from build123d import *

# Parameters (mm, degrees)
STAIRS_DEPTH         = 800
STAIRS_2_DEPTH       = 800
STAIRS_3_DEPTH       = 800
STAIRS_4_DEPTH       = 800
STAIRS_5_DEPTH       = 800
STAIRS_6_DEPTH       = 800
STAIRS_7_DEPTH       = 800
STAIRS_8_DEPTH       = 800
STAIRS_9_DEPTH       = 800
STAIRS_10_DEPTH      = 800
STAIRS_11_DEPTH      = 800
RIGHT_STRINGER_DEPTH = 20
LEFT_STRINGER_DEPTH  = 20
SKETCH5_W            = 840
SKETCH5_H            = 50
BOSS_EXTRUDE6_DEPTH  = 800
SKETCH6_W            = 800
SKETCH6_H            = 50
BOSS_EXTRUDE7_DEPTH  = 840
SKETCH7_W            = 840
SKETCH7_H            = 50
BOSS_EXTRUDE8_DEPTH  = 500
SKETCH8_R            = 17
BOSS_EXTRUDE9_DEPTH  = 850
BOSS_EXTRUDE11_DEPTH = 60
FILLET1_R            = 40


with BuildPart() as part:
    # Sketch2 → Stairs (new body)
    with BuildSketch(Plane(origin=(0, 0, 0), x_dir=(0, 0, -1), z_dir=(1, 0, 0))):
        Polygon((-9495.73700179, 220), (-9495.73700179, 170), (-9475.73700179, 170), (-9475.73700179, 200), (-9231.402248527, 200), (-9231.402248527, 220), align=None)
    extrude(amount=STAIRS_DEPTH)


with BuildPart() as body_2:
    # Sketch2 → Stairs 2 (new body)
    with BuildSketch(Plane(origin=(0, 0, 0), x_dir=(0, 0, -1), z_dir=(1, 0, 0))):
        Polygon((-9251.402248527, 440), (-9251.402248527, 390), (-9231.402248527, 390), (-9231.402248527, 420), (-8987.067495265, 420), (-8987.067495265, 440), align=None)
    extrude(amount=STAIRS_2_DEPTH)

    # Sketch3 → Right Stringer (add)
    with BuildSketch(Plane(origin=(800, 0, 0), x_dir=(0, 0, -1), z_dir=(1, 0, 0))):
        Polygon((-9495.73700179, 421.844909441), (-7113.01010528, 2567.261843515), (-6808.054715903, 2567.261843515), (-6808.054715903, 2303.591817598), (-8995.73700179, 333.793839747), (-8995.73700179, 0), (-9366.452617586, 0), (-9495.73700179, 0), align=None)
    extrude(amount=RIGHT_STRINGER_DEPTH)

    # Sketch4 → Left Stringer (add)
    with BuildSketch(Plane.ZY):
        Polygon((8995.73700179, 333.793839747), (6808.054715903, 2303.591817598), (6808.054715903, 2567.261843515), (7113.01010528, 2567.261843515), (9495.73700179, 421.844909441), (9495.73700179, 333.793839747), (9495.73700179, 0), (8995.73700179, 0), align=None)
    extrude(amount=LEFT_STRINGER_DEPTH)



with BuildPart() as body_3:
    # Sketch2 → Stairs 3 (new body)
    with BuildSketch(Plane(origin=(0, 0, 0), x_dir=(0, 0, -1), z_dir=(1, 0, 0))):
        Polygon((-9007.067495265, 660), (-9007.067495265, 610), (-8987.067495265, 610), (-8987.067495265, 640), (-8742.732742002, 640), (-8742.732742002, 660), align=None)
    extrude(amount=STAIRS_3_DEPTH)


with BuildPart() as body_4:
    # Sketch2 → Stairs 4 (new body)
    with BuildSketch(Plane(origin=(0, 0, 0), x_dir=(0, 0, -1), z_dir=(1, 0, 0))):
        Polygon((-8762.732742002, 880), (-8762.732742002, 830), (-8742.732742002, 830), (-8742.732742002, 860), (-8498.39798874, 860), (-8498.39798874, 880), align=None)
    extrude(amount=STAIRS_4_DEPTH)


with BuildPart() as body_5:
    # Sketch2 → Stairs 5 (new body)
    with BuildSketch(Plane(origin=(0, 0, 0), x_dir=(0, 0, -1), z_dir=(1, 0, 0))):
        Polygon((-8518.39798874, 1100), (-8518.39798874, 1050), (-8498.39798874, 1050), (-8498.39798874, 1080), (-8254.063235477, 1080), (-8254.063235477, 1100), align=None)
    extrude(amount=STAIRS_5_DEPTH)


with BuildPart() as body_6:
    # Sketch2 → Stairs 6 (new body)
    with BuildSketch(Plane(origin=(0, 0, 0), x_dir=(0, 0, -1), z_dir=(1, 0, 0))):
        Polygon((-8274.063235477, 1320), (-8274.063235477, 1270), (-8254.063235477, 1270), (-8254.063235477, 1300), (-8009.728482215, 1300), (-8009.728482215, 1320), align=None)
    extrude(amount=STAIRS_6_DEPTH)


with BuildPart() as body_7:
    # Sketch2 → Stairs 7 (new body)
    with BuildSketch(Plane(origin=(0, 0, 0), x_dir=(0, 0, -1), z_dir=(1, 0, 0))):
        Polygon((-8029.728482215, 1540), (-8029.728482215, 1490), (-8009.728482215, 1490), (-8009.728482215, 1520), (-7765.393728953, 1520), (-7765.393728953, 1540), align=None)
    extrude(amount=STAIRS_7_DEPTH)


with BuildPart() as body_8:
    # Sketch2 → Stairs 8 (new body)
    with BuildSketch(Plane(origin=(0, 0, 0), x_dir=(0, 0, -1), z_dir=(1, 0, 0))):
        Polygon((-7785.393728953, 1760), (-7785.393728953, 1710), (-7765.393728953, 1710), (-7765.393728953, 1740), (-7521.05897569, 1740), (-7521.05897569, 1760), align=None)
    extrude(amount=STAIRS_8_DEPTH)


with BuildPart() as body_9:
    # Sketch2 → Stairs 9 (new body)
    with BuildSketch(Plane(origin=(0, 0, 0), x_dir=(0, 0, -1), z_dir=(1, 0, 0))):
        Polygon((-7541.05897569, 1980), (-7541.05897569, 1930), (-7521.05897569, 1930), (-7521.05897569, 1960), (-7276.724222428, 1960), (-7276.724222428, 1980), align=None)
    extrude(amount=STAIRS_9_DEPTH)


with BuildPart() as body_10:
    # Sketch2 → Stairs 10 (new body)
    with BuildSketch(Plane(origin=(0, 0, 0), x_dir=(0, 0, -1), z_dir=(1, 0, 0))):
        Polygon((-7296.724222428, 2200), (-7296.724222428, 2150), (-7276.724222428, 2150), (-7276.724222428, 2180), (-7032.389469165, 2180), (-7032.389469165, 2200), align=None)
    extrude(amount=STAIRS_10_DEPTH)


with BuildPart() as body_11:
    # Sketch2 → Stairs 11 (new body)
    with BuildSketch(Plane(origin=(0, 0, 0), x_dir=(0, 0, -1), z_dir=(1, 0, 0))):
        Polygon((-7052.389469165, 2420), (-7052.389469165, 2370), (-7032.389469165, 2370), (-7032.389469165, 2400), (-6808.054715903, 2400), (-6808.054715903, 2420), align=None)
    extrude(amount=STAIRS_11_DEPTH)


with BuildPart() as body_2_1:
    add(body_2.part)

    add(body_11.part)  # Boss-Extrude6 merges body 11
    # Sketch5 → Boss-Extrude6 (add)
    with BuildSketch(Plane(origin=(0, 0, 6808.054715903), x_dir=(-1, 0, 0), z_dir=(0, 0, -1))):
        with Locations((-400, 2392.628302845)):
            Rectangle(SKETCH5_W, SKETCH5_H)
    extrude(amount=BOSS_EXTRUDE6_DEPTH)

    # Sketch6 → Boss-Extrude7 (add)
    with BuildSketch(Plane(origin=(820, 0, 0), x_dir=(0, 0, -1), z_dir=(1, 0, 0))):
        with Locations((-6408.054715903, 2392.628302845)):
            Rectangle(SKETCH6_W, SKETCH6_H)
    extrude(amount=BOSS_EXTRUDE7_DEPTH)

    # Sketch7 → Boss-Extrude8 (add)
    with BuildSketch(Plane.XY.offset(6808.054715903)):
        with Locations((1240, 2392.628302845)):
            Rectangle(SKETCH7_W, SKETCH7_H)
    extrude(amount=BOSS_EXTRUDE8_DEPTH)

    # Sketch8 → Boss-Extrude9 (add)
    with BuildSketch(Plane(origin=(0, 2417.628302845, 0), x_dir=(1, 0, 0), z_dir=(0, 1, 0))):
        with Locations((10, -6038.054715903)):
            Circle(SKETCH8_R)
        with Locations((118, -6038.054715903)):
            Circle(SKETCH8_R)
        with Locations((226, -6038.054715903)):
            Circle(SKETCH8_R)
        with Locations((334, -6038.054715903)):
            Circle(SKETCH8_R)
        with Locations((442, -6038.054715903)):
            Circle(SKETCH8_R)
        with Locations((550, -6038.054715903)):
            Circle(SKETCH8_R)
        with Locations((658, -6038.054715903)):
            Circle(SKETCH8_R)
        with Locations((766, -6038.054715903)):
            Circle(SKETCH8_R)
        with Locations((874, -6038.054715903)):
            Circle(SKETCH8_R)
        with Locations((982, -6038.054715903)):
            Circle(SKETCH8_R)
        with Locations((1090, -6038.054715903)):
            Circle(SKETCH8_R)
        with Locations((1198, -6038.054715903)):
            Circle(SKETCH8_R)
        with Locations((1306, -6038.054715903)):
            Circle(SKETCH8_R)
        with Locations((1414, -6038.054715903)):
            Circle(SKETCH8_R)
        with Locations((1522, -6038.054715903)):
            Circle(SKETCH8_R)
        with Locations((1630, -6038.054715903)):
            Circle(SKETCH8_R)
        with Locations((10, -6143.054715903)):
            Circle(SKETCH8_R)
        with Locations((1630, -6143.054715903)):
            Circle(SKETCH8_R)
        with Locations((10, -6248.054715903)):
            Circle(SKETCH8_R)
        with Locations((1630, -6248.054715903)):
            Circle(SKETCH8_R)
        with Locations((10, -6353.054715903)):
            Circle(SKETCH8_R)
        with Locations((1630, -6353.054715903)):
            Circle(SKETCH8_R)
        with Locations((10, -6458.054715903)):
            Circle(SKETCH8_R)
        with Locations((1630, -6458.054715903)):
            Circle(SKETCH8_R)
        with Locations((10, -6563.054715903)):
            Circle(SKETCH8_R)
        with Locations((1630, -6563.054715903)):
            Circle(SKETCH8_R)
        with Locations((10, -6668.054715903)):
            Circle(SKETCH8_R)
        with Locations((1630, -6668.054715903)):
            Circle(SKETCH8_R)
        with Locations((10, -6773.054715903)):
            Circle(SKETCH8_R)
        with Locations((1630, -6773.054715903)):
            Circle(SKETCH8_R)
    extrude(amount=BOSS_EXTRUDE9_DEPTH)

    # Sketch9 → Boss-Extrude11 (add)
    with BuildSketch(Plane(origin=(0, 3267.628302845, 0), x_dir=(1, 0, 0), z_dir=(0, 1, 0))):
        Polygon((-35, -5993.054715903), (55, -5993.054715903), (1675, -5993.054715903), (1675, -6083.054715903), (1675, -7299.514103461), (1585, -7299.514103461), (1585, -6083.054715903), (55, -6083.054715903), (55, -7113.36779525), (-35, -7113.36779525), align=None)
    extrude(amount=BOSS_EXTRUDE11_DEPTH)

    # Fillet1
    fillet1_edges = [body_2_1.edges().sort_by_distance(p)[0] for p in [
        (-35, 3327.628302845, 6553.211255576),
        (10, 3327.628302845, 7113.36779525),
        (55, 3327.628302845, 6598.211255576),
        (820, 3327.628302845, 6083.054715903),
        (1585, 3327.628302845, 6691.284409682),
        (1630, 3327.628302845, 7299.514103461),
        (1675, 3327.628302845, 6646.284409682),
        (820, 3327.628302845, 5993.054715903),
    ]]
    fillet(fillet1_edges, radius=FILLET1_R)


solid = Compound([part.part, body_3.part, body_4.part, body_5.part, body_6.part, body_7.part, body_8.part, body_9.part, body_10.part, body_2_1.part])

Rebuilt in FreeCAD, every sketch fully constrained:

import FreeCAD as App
import Part
import Sketcher

V = App.Vector
Q = App.Units.Quantity


def edges_at(feature, points):
    """Names of the edges that pass closest to the given points."""
    edges = feature.Shape.Edges
    near = lambda p: min(range(len(edges)), key=lambda i: edges[i].distToShape(Part.Vertex(*p))[0])
    return sorted({f"Edge{near(p) + 1}" for p in points})

doc = App.newDocument("Part")
params = doc.addObject("Spreadsheet::Sheet", "Params")
for row, (alias, value) in enumerate([
    ("sketch1_width", "50 mm"),
    ("sketch1_width2", "30 mm"),
    ("pad1_length", "800 mm"),
    ("sketch2_width", "50 mm"),
    ("sketch2_width2", "30 mm"),
    ("pad2_length", "800 mm"),
    ("sketch3_height", "500 mm"),
    ("pad3_length", "20 mm"),
    ("sketch4_height", "500 mm"),
    ("pad4_length", "20 mm"),
    ("sketch5_width", "50 mm"),
    ("sketch5_width2", "30 mm"),
    ("pad5_length", "800 mm"),
    ("sketch6_width", "50 mm"),
    ("sketch6_width2", "30 mm"),
    ("pad6_length", "800 mm"),
    ("sketch7_width", "50 mm"),
    ("sketch7_width2", "30 mm"),
    ("pad7_length", "800 mm"),
    ("sketch8_width", "50 mm"),
    ("sketch8_width2", "30 mm"),
    ("pad8_length", "800 mm"),
    ("sketch9_width", "50 mm"),
    ("sketch9_width2", "30 mm"),
    ("pad9_length", "800 mm"),
    ("sketch10_width", "50 mm"),
    ("sketch10_width2", "30 mm"),
    ("pad10_length", "800 mm"),
    ("sketch11_width", "50 mm"),
    ("sketch11_width2", "30 mm"),
    ("pad11_length", "800 mm"),
    ("sketch12_width", "50 mm"),
    ("sketch12_width2", "30 mm"),
    ("pad12_length", "800 mm"),
    ("sketch13_width", "50 mm"),
    ("sketch13_width2", "30 mm"),
    ("pad13_length", "800 mm"),
    ("sketch14_width", "840 mm"),
    ("sketch14_height", "50 mm"),
    ("pad14_length", "800 mm"),
    ("sketch15_width", "50 mm"),
    ("sketch15_height", "800 mm"),
    ("pad15_length", "840 mm"),
    ("sketch16_width", "840 mm"),
    ("sketch16_height", "50 mm"),
    ("pad16_length", "500 mm"),
    ("sketch17_diameter", "34 mm"),
    ("pad17_length", "850 mm"),
    ("sketch18_width", "1710 mm"),
    ("sketch18_width2", "90 mm"),
    ("pad18_length", "60 mm"),
    ("fillet_radius", "40 mm"),
], start=1):
    params.set(f"A{row}", alias)
    params.set(f"B{row}", "=" + value)
    params.setAlias(f"B{row}", alias)

body = doc.addObject("PartDesign::Body", "Body")

sketch1 = body.newObject("Sketcher::SketchObject", "Sketch")
sketch1.AttachmentSupport = (doc.getObject("YZ_Plane"), [""])
sketch1.MapMode = "FlatFace"
sketch1.addGeometry([
    Part.LineSegment(V(220, 9496, 0), V(170, 9496, 0)),
    Part.LineSegment(V(170, 9496, 0), V(170, 9476, 0)),
    Part.LineSegment(V(170, 9476, 0), V(200, 9476, 0)),
    Part.LineSegment(V(200, 9476, 0), V(200, 9231, 0)),
    Part.LineSegment(V(200, 9231, 0), V(220, 9231, 0)),
    Part.LineSegment(V(220, 9231, 0), V(220, 9496, 0)),
], False)
sketch1.addConstraint([
    Sketcher.Constraint("Coincident", 0, 2, 1, 1),
    Sketcher.Constraint("Coincident", 1, 2, 2, 1),
    Sketcher.Constraint("Coincident", 2, 2, 3, 1),
    Sketcher.Constraint("Coincident", 3, 2, 4, 1),
    Sketcher.Constraint("Coincident", 4, 2, 5, 1),
    Sketcher.Constraint("Coincident", 5, 2, 0, 1),
    Sketcher.Constraint("Horizontal", 0),
    Sketcher.Constraint("Vertical", 1),
    Sketcher.Constraint("Horizontal", 2),
    Sketcher.Constraint("Vertical", 3),
    Sketcher.Constraint("Horizontal", 4),
    Sketcher.Constraint("Vertical", 5),
    Sketcher.Constraint("Equal", 4, 1),
    Sketcher.Constraint("DistanceX", 0, 2, 0, 1, Q("50 mm")),
    Sketcher.Constraint("DistanceX", 2, 1, 2, 2, Q("30 mm")),
    Sketcher.Constraint("DistanceX", -1, 1, 0, 2, Q("170 mm")),
    Sketcher.Constraint("DistanceY", -1, 1, 0, 2, Q("9495.737002 mm")),
    Sketcher.Constraint("DistanceY", 3, 2, 3, 1, Q("244.334753 mm")),
])
sketch1.setExpression("Constraints[13]", "Params.sketch1_width")
sketch1.setExpression("Constraints[14]", "Params.sketch1_width2")
pad1 = body.newObject("PartDesign::Pad", "Pad")
pad1.Profile = sketch1
pad1.setExpression("Length", "Params.pad1_length")
body2 = doc.addObject("PartDesign::Body", "Body001")

sketch2 = body2.newObject("Sketcher::SketchObject", "Sketch001")
sketch2.AttachmentSupport = (doc.getObject("YZ_Plane001"), [""])
sketch2.MapMode = "FlatFace"
sketch2.addGeometry([
    Part.LineSegment(V(440, 9251, 0), V(390, 9251, 0)),
    Part.LineSegment(V(390, 9251, 0), V(390, 9231, 0)),
    Part.LineSegment(V(390, 9231, 0), V(420, 9231, 0)),
    Part.LineSegment(V(420, 9231, 0), V(420, 8987, 0)),
    Part.LineSegment(V(420, 8987, 0), V(440, 8987, 0)),
    Part.LineSegment(V(440, 8987, 0), V(440, 9251, 0)),
], False)
sketch2.addConstraint([
    Sketcher.Constraint("Coincident", 0, 2, 1, 1),
    Sketcher.Constraint("Coincident", 1, 2, 2, 1),
    Sketcher.Constraint("Coincident", 2, 2, 3, 1),
    Sketcher.Constraint("Coincident", 3, 2, 4, 1),
    Sketcher.Constraint("Coincident", 4, 2, 5, 1),
    Sketcher.Constraint("Coincident", 5, 2, 0, 1),
    Sketcher.Constraint("Horizontal", 0),
    Sketcher.Constraint("Vertical", 1),
    Sketcher.Constraint("Horizontal", 2),
    Sketcher.Constraint("Vertical", 3),
    Sketcher.Constraint("Horizontal", 4),
    Sketcher.Constraint("Vertical", 5),
    Sketcher.Constraint("Equal", 4, 1),
    Sketcher.Constraint("DistanceX", 0, 2, 0, 1, Q("50 mm")),
    Sketcher.Constraint("DistanceX", 2, 1, 2, 2, Q("30 mm")),
    Sketcher.Constraint("DistanceX", -1, 1, 0, 2, Q("390 mm")),
    Sketcher.Constraint("DistanceY", 3, 2, 3, 1, Q("244.334753 mm")),
    Sketcher.Constraint("DistanceY", -1, 1, 0, 2, Q("9251.402249 mm")),
])
sketch2.setExpression("Constraints[13]", "Params.sketch2_width")
sketch2.setExpression("Constraints[14]", "Params.sketch2_width2")
pad2 = body2.newObject("PartDesign::Pad", "Pad001")
pad2.Profile = sketch2
pad2.setExpression("Length", "Params.pad2_length")

sketch3 = body2.newObject("Sketcher::SketchObject", "Sketch002")
sketch3.AttachmentSupport = (doc.getObject("YZ_Plane001"), [""])
sketch3.MapMode = "FlatFace"
sketch3.AttachmentOffset = App.Placement(V(0, 0, 800), App.Rotation())
sketch3.addGeometry([
    Part.LineSegment(V(2567, 7113, 0), V(422, 9496, 0)),
    Part.LineSegment(V(422, 9496, 0), V(0, 9496, 0)),
    Part.LineSegment(V(0, 9496, 0), V(0, 8996, 0)),
    Part.LineSegment(V(0, 8996, 0), V(334, 8996, 0)),
    Part.LineSegment(V(334, 8996, 0), V(2304, 6808, 0)),
    Part.LineSegment(V(2304, 6808, 0), V(2567, 6808, 0)),
    Part.LineSegment(V(2567, 6808, 0), V(2567, 7113, 0)),
], False)
sketch3.addConstraint([
    Sketcher.Constraint("Coincident", 0, 2, 1, 1),
    Sketcher.Constraint("Coincident", 1, 2, 2, 1),
    Sketcher.Constraint("Coincident", 2, 2, 3, 1),
    Sketcher.Constraint("Coincident", 3, 2, 4, 1),
    Sketcher.Constraint("Coincident", 4, 2, 5, 1),
    Sketcher.Constraint("Coincident", 5, 2, 6, 1),
    Sketcher.Constraint("Coincident", 6, 2, 0, 1),
    Sketcher.Constraint("Horizontal", 1),
    Sketcher.Constraint("Vertical", 2),
    Sketcher.Constraint("Horizontal", 3),
    Sketcher.Constraint("Horizontal", 5),
    Sketcher.Constraint("Vertical", 6),
    Sketcher.Constraint("PointOnObject", 1, 2, -2),
    Sketcher.Constraint("Parallel", 0, 4),
    Sketcher.Constraint("DistanceY", 2, 2, 2, 1, Q("500 mm")),
    Sketcher.Constraint("Angle", 0, Q("132 deg")),
    Sketcher.Constraint("DistanceY", -1, 1, 0, 2, Q("9495.737002 mm")),
    Sketcher.Constraint("DistanceX", 1, 2, 1, 1, Q("421.844909 mm")),
    Sketcher.Constraint("DistanceX", 3, 1, 3, 2, Q("333.79384 mm")),
    Sketcher.Constraint("DistanceY", 6, 1, 6, 2, Q("304.955389 mm")),
    Sketcher.Constraint("DistanceX", 0, 2, 4, 2, Q("1881.746908 mm")),
])
sketch3.setExpression("Constraints[14]", "Params.sketch3_height")
pad3 = body2.newObject("PartDesign::Pad", "Pad002")
pad3.Profile = sketch3
pad3.setExpression("Length", "Params.pad3_length")

sketch4 = body2.newObject("Sketcher::SketchObject", "Sketch003")
sketch4.AttachmentSupport = (doc.getObject("YZ_Plane001"), [""])
sketch4.MapMode = "FlatFace"
sketch4.addGeometry([
    Part.LineSegment(V(2304, 6808, 0), V(334, 8996, 0)),
    Part.LineSegment(V(334, 8996, 0), V(0, 8996, 0)),
    Part.LineSegment(V(0, 8996, 0), V(0, 9496, 0)),
    Part.LineSegment(V(0, 9496, 0), V(422, 9496, 0)),
    Part.LineSegment(V(422, 9496, 0), V(2567, 7113, 0)),
    Part.LineSegment(V(2567, 7113, 0), V(2567, 6808, 0)),
    Part.LineSegment(V(2567, 6808, 0), V(2304, 6808, 0)),
], False)
sketch4.addConstraint([
    Sketcher.Constraint("Coincident", 0, 2, 1, 1),
    Sketcher.Constraint("Coincident", 1, 2, 2, 1),
    Sketcher.Constraint("Coincident", 2, 2, 3, 1),
    Sketcher.Constraint("Coincident", 3, 2, 4, 1),
    Sketcher.Constraint("Coincident", 4, 2, 5, 1),
    Sketcher.Constraint("Coincident", 5, 2, 6, 1),
    Sketcher.Constraint("Coincident", 6, 2, 0, 1),
    Sketcher.Constraint("Horizontal", 1),
    Sketcher.Constraint("Vertical", 2),
    Sketcher.Constraint("Horizontal", 3),
    Sketcher.Constraint("Vertical", 5),
    Sketcher.Constraint("Horizontal", 6),
    Sketcher.Constraint("PointOnObject", 1, 2, -2),
    Sketcher.Constraint("Parallel", 0, 4),
    Sketcher.Constraint("DistanceY", 2, 1, 2, 2, Q("500 mm")),
    Sketcher.Constraint("Angle", 0, Q("132 deg")),
    Sketcher.Constraint("DistanceY", -1, 1, 0, 2, Q("8995.737002 mm")),
    Sketcher.Constraint("DistanceX", 1, 2, 1, 1, Q("333.79384 mm")),
    Sketcher.Constraint("DistanceX", 3, 1, 3, 2, Q("421.844909 mm")),
    Sketcher.Constraint("DistanceY", 5, 2, 5, 1, Q("304.955389 mm")),
    Sketcher.Constraint("DistanceX", 3, 2, 6, 2, Q("1881.746908 mm")),
])
sketch4.setExpression("Constraints[14]", "Params.sketch4_height")
pad4 = body2.newObject("PartDesign::Pad", "Pad003")
pad4.Profile = sketch4
pad4.setExpression("Length", "Params.pad4_length")
pad4.Reversed = True
body3 = doc.addObject("PartDesign::Body", "Body002")

sketch5 = body3.newObject("Sketcher::SketchObject", "Sketch004")
sketch5.AttachmentSupport = (doc.getObject("YZ_Plane002"), [""])
sketch5.MapMode = "FlatFace"
sketch5.addGeometry([
    Part.LineSegment(V(660, 9007, 0), V(610, 9007, 0)),
    Part.LineSegment(V(610, 9007, 0), V(610, 8987, 0)),
    Part.LineSegment(V(610, 8987, 0), V(640, 8987, 0)),
    Part.LineSegment(V(640, 8987, 0), V(640, 8743, 0)),
    Part.LineSegment(V(640, 8743, 0), V(660, 8743, 0)),
    Part.LineSegment(V(660, 8743, 0), V(660, 9007, 0)),
], False)
sketch5.addConstraint([
    Sketcher.Constraint("Coincident", 0, 2, 1, 1),
    Sketcher.Constraint("Coincident", 1, 2, 2, 1),
    Sketcher.Constraint("Coincident", 2, 2, 3, 1),
    Sketcher.Constraint("Coincident", 3, 2, 4, 1),
    Sketcher.Constraint("Coincident", 4, 2, 5, 1),
    Sketcher.Constraint("Coincident", 5, 2, 0, 1),
    Sketcher.Constraint("Horizontal", 0),
    Sketcher.Constraint("Vertical", 1),
    Sketcher.Constraint("Horizontal", 2),
    Sketcher.Constraint("Vertical", 3),
    Sketcher.Constraint("Horizontal", 4),
    Sketcher.Constraint("Vertical", 5),
    Sketcher.Constraint("Equal", 4, 1),
    Sketcher.Constraint("DistanceX", 0, 2, 0, 1, Q("50 mm")),
    Sketcher.Constraint("DistanceX", 2, 1, 2, 2, Q("30 mm")),
    Sketcher.Constraint("DistanceX", -1, 1, 0, 2, Q("610 mm")),
    Sketcher.Constraint("DistanceY", 3, 2, 3, 1, Q("244.334753 mm")),
    Sketcher.Constraint("DistanceY", -1, 1, 0, 2, Q("9007.067495 mm")),
])
sketch5.setExpression("Constraints[13]", "Params.sketch5_width")
sketch5.setExpression("Constraints[14]", "Params.sketch5_width2")
pad5 = body3.newObject("PartDesign::Pad", "Pad004")
pad5.Profile = sketch5
pad5.setExpression("Length", "Params.pad5_length")
body4 = doc.addObject("PartDesign::Body", "Body003")

sketch6 = body4.newObject("Sketcher::SketchObject", "Sketch005")
sketch6.AttachmentSupport = (doc.getObject("YZ_Plane003"), [""])
sketch6.MapMode = "FlatFace"
sketch6.addGeometry([
    Part.LineSegment(V(880, 8763, 0), V(830, 8763, 0)),
    Part.LineSegment(V(830, 8763, 0), V(830, 8743, 0)),
    Part.LineSegment(V(830, 8743, 0), V(860, 8743, 0)),
    Part.LineSegment(V(860, 8743, 0), V(860, 8498, 0)),
    Part.LineSegment(V(860, 8498, 0), V(880, 8498, 0)),
    Part.LineSegment(V(880, 8498, 0), V(880, 8763, 0)),
], False)
sketch6.addConstraint([
    Sketcher.Constraint("Coincident", 0, 2, 1, 1),
    Sketcher.Constraint("Coincident", 1, 2, 2, 1),
    Sketcher.Constraint("Coincident", 2, 2, 3, 1),
    Sketcher.Constraint("Coincident", 3, 2, 4, 1),
    Sketcher.Constraint("Coincident", 4, 2, 5, 1),
    Sketcher.Constraint("Coincident", 5, 2, 0, 1),
    Sketcher.Constraint("Horizontal", 0),
    Sketcher.Constraint("Vertical", 1),
    Sketcher.Constraint("Horizontal", 2),
    Sketcher.Constraint("Vertical", 3),
    Sketcher.Constraint("Horizontal", 4),
    Sketcher.Constraint("Vertical", 5),
    Sketcher.Constraint("Equal", 4, 1),
    Sketcher.Constraint("DistanceX", 0, 2, 0, 1, Q("50 mm")),
    Sketcher.Constraint("DistanceX", 2, 1, 2, 2, Q("30 mm")),
    Sketcher.Constraint("DistanceX", -1, 1, 0, 2, Q("830 mm")),
    Sketcher.Constraint("DistanceY", 3, 2, 3, 1, Q("244.334753 mm")),
    Sketcher.Constraint("DistanceY", -1, 1, 3, 2, Q("8498.397989 mm")),
])
sketch6.setExpression("Constraints[13]", "Params.sketch6_width")
sketch6.setExpression("Constraints[14]", "Params.sketch6_width2")
pad6 = body4.newObject("PartDesign::Pad", "Pad005")
pad6.Profile = sketch6
pad6.setExpression("Length", "Params.pad6_length")
body5 = doc.addObject("PartDesign::Body", "Body004")

sketch7 = body5.newObject("Sketcher::SketchObject", "Sketch006")
sketch7.AttachmentSupport = (doc.getObject("YZ_Plane004"), [""])
sketch7.MapMode = "FlatFace"
sketch7.addGeometry([
    Part.LineSegment(V(1100, 8518, 0), V(1050, 8518, 0)),
    Part.LineSegment(V(1050, 8518, 0), V(1050, 8498, 0)),
    Part.LineSegment(V(1050, 8498, 0), V(1080, 8498, 0)),
    Part.LineSegment(V(1080, 8498, 0), V(1080, 8254, 0)),
    Part.LineSegment(V(1080, 8254, 0), V(1100, 8254, 0)),
    Part.LineSegment(V(1100, 8254, 0), V(1100, 8518, 0)),
], False)
sketch7.addConstraint([
    Sketcher.Constraint("Coincident", 0, 2, 1, 1),
    Sketcher.Constraint("Coincident", 1, 2, 2, 1),
    Sketcher.Constraint("Coincident", 2, 2, 3, 1),
    Sketcher.Constraint("Coincident", 3, 2, 4, 1),
    Sketcher.Constraint("Coincident", 4, 2, 5, 1),
    Sketcher.Constraint("Coincident", 5, 2, 0, 1),
    Sketcher.Constraint("Horizontal", 0),
    Sketcher.Constraint("Vertical", 1),
    Sketcher.Constraint("Horizontal", 2),
    Sketcher.Constraint("Vertical", 3),
    Sketcher.Constraint("Horizontal", 4),
    Sketcher.Constraint("Vertical", 5),
    Sketcher.Constraint("Equal", 4, 1),
    Sketcher.Constraint("DistanceX", 0, 2, 0, 1, Q("50 mm")),
    Sketcher.Constraint("DistanceX", 2, 1, 2, 2, Q("30 mm")),
    Sketcher.Constraint("DistanceX", -1, 1, 0, 2, Q("1050 mm")),
    Sketcher.Constraint("DistanceY", 3, 2, 3, 1, Q("244.334753 mm")),
    Sketcher.Constraint("DistanceY", -1, 1, 0, 2, Q("8518.397989 mm")),
])
sketch7.setExpression("Constraints[13]", "Params.sketch7_width")
sketch7.setExpression("Constraints[14]", "Params.sketch7_width2")
pad7 = body5.newObject("PartDesign::Pad", "Pad006")
pad7.Profile = sketch7
pad7.setExpression("Length", "Params.pad7_length")
body6 = doc.addObject("PartDesign::Body", "Body005")

sketch8 = body6.newObject("Sketcher::SketchObject", "Sketch007")
sketch8.AttachmentSupport = (doc.getObject("YZ_Plane005"), [""])
sketch8.MapMode = "FlatFace"
sketch8.addGeometry([
    Part.LineSegment(V(1320, 8274, 0), V(1270, 8274, 0)),
    Part.LineSegment(V(1270, 8274, 0), V(1270, 8254, 0)),
    Part.LineSegment(V(1270, 8254, 0), V(1300, 8254, 0)),
    Part.LineSegment(V(1300, 8254, 0), V(1300, 8010, 0)),
    Part.LineSegment(V(1300, 8010, 0), V(1320, 8010, 0)),
    Part.LineSegment(V(1320, 8010, 0), V(1320, 8274, 0)),
], False)
sketch8.addConstraint([
    Sketcher.Constraint("Coincident", 0, 2, 1, 1),
    Sketcher.Constraint("Coincident", 1, 2, 2, 1),
    Sketcher.Constraint("Coincident", 2, 2, 3, 1),
    Sketcher.Constraint("Coincident", 3, 2, 4, 1),
    Sketcher.Constraint("Coincident", 4, 2, 5, 1),
    Sketcher.Constraint("Coincident", 5, 2, 0, 1),
    Sketcher.Constraint("Horizontal", 0),
    Sketcher.Constraint("Vertical", 1),
    Sketcher.Constraint("Horizontal", 2),
    Sketcher.Constraint("Vertical", 3),
    Sketcher.Constraint("Horizontal", 4),
    Sketcher.Constraint("Vertical", 5),
    Sketcher.Constraint("Equal", 4, 1),
    Sketcher.Constraint("DistanceX", 0, 2, 0, 1, Q("50 mm")),
    Sketcher.Constraint("DistanceX", 2, 1, 2, 2, Q("30 mm")),
    Sketcher.Constraint("DistanceX", -1, 1, 0, 2, Q("1270 mm")),
    Sketcher.Constraint("DistanceY", 3, 2, 3, 1, Q("244.334753 mm")),
    Sketcher.Constraint("DistanceY", -1, 1, 0, 2, Q("8274.063235 mm")),
])
sketch8.setExpression("Constraints[13]", "Params.sketch8_width")
sketch8.setExpression("Constraints[14]", "Params.sketch8_width2")
pad8 = body6.newObject("PartDesign::Pad", "Pad007")
pad8.Profile = sketch8
pad8.setExpression("Length", "Params.pad8_length")
body7 = doc.addObject("PartDesign::Body", "Body006")

sketch9 = body7.newObject("Sketcher::SketchObject", "Sketch008")
sketch9.AttachmentSupport = (doc.getObject("YZ_Plane006"), [""])
sketch9.MapMode = "FlatFace"
sketch9.addGeometry([
    Part.LineSegment(V(1540, 8030, 0), V(1490, 8030, 0)),
    Part.LineSegment(V(1490, 8030, 0), V(1490, 8010, 0)),
    Part.LineSegment(V(1490, 8010, 0), V(1520, 8010, 0)),
    Part.LineSegment(V(1520, 8010, 0), V(1520, 7765, 0)),
    Part.LineSegment(V(1520, 7765, 0), V(1540, 7765, 0)),
    Part.LineSegment(V(1540, 7765, 0), V(1540, 8030, 0)),
], False)
sketch9.addConstraint([
    Sketcher.Constraint("Coincident", 0, 2, 1, 1),
    Sketcher.Constraint("Coincident", 1, 2, 2, 1),
    Sketcher.Constraint("Coincident", 2, 2, 3, 1),
    Sketcher.Constraint("Coincident", 3, 2, 4, 1),
    Sketcher.Constraint("Coincident", 4, 2, 5, 1),
    Sketcher.Constraint("Coincident", 5, 2, 0, 1),
    Sketcher.Constraint("Horizontal", 0),
    Sketcher.Constraint("Vertical", 1),
    Sketcher.Constraint("Horizontal", 2),
    Sketcher.Constraint("Vertical", 3),
    Sketcher.Constraint("Horizontal", 4),
    Sketcher.Constraint("Vertical", 5),
    Sketcher.Constraint("Equal", 4, 1),
    Sketcher.Constraint("DistanceX", 0, 2, 0, 1, Q("50 mm")),
    Sketcher.Constraint("DistanceX", 2, 1, 2, 2, Q("30 mm")),
    Sketcher.Constraint("DistanceX", -1, 1, 0, 2, Q("1490 mm")),
    Sketcher.Constraint("DistanceY", 3, 2, 3, 1, Q("244.334753 mm")),
    Sketcher.Constraint("DistanceY", -1, 1, 3, 2, Q("7765.393729 mm")),
])
sketch9.setExpression("Constraints[13]", "Params.sketch9_width")
sketch9.setExpression("Constraints[14]", "Params.sketch9_width2")
pad9 = body7.newObject("PartDesign::Pad", "Pad008")
pad9.Profile = sketch9
pad9.setExpression("Length", "Params.pad9_length")
body8 = doc.addObject("PartDesign::Body", "Body007")

sketch10 = body8.newObject("Sketcher::SketchObject", "Sketch009")
sketch10.AttachmentSupport = (doc.getObject("YZ_Plane007"), [""])
sketch10.MapMode = "FlatFace"
sketch10.addGeometry([
    Part.LineSegment(V(1760, 7785, 0), V(1710, 7785, 0)),
    Part.LineSegment(V(1710, 7785, 0), V(1710, 7765, 0)),
    Part.LineSegment(V(1710, 7765, 0), V(1740, 7765, 0)),
    Part.LineSegment(V(1740, 7765, 0), V(1740, 7521, 0)),
    Part.LineSegment(V(1740, 7521, 0), V(1760, 7521, 0)),
    Part.LineSegment(V(1760, 7521, 0), V(1760, 7785, 0)),
], False)
sketch10.addConstraint([
    Sketcher.Constraint("Coincident", 0, 2, 1, 1),
    Sketcher.Constraint("Coincident", 1, 2, 2, 1),
    Sketcher.Constraint("Coincident", 2, 2, 3, 1),
    Sketcher.Constraint("Coincident", 3, 2, 4, 1),
    Sketcher.Constraint("Coincident", 4, 2, 5, 1),
    Sketcher.Constraint("Coincident", 5, 2, 0, 1),
    Sketcher.Constraint("Horizontal", 0),
    Sketcher.Constraint("Vertical", 1),
    Sketcher.Constraint("Horizontal", 2),
    Sketcher.Constraint("Vertical", 3),
    Sketcher.Constraint("Horizontal", 4),
    Sketcher.Constraint("Vertical", 5),
    Sketcher.Constraint("Equal", 4, 1),
    Sketcher.Constraint("DistanceX", 0, 2, 0, 1, Q("50 mm")),
    Sketcher.Constraint("DistanceX", 2, 1, 2, 2, Q("30 mm")),
    Sketcher.Constraint("DistanceX", -1, 1, 0, 2, Q("1710 mm")),
    Sketcher.Constraint("DistanceY", 3, 2, 3, 1, Q("244.334753 mm")),
    Sketcher.Constraint("DistanceY", -1, 1, 0, 2, Q("7785.393729 mm")),
])
sketch10.setExpression("Constraints[13]", "Params.sketch10_width")
sketch10.setExpression("Constraints[14]", "Params.sketch10_width2")
pad10 = body8.newObject("PartDesign::Pad", "Pad009")
pad10.Profile = sketch10
pad10.setExpression("Length", "Params.pad10_length")
body9 = doc.addObject("PartDesign::Body", "Body008")

sketch11 = body9.newObject("Sketcher::SketchObject", "Sketch010")
sketch11.AttachmentSupport = (doc.getObject("YZ_Plane008"), [""])
sketch11.MapMode = "FlatFace"
sketch11.addGeometry([
    Part.LineSegment(V(1980, 7541, 0), V(1930, 7541, 0)),
    Part.LineSegment(V(1930, 7541, 0), V(1930, 7521, 0)),
    Part.LineSegment(V(1930, 7521, 0), V(1960, 7521, 0)),
    Part.LineSegment(V(1960, 7521, 0), V(1960, 7277, 0)),
    Part.LineSegment(V(1960, 7277, 0), V(1980, 7277, 0)),
    Part.LineSegment(V(1980, 7277, 0), V(1980, 7541, 0)),
], False)
sketch11.addConstraint([
    Sketcher.Constraint("Coincident", 0, 2, 1, 1),
    Sketcher.Constraint("Coincident", 1, 2, 2, 1),
    Sketcher.Constraint("Coincident", 2, 2, 3, 1),
    Sketcher.Constraint("Coincident", 3, 2, 4, 1),
    Sketcher.Constraint("Coincident", 4, 2, 5, 1),
    Sketcher.Constraint("Coincident", 5, 2, 0, 1),
    Sketcher.Constraint("Horizontal", 0),
    Sketcher.Constraint("Vertical", 1),
    Sketcher.Constraint("Horizontal", 2),
    Sketcher.Constraint("Vertical", 3),
    Sketcher.Constraint("Horizontal", 4),
    Sketcher.Constraint("Vertical", 5),
    Sketcher.Constraint("Equal", 4, 1),
    Sketcher.Constraint("DistanceX", 0, 2, 0, 1, Q("50 mm")),
    Sketcher.Constraint("DistanceX", 2, 1, 2, 2, Q("30 mm")),
    Sketcher.Constraint("DistanceX", -1, 1, 0, 2, Q("1930 mm")),
    Sketcher.Constraint("DistanceY", 3, 2, 3, 1, Q("244.334753 mm")),
    Sketcher.Constraint("DistanceY", -1, 1, 0, 2, Q("7541.058976 mm")),
])
sketch11.setExpression("Constraints[13]", "Params.sketch11_width")
sketch11.setExpression("Constraints[14]", "Params.sketch11_width2")
pad11 = body9.newObject("PartDesign::Pad", "Pad010")
pad11.Profile = sketch11
pad11.setExpression("Length", "Params.pad11_length")
body10 = doc.addObject("PartDesign::Body", "Body009")

sketch12 = body10.newObject("Sketcher::SketchObject", "Sketch011")
sketch12.AttachmentSupport = (doc.getObject("YZ_Plane009"), [""])
sketch12.MapMode = "FlatFace"
sketch12.addGeometry([
    Part.LineSegment(V(2200, 7297, 0), V(2150, 7297, 0)),
    Part.LineSegment(V(2150, 7297, 0), V(2150, 7277, 0)),
    Part.LineSegment(V(2150, 7277, 0), V(2180, 7277, 0)),
    Part.LineSegment(V(2180, 7277, 0), V(2180, 7032, 0)),
    Part.LineSegment(V(2180, 7032, 0), V(2200, 7032, 0)),
    Part.LineSegment(V(2200, 7032, 0), V(2200, 7297, 0)),
], False)
sketch12.addConstraint([
    Sketcher.Constraint("Coincident", 0, 2, 1, 1),
    Sketcher.Constraint("Coincident", 1, 2, 2, 1),
    Sketcher.Constraint("Coincident", 2, 2, 3, 1),
    Sketcher.Constraint("Coincident", 3, 2, 4, 1),
    Sketcher.Constraint("Coincident", 4, 2, 5, 1),
    Sketcher.Constraint("Coincident", 5, 2, 0, 1),
    Sketcher.Constraint("Horizontal", 0),
    Sketcher.Constraint("Vertical", 1),
    Sketcher.Constraint("Horizontal", 2),
    Sketcher.Constraint("Vertical", 3),
    Sketcher.Constraint("Horizontal", 4),
    Sketcher.Constraint("Vertical", 5),
    Sketcher.Constraint("Equal", 4, 1),
    Sketcher.Constraint("DistanceX", 0, 2, 0, 1, Q("50 mm")),
    Sketcher.Constraint("DistanceX", 2, 1, 2, 2, Q("30 mm")),
    Sketcher.Constraint("DistanceX", -1, 1, 0, 2, Q("2150 mm")),
    Sketcher.Constraint("DistanceY", 3, 2, 3, 1, Q("244.334753 mm")),
    Sketcher.Constraint("DistanceY", -1, 1, 3, 2, Q("7032.389469 mm")),
])
sketch12.setExpression("Constraints[13]", "Params.sketch12_width")
sketch12.setExpression("Constraints[14]", "Params.sketch12_width2")
pad12 = body10.newObject("PartDesign::Pad", "Pad011")
pad12.Profile = sketch12
pad12.setExpression("Length", "Params.pad12_length")
body11 = doc.addObject("PartDesign::Body", "Body010")

sketch13 = body11.newObject("Sketcher::SketchObject", "Sketch012")
sketch13.AttachmentSupport = (doc.getObject("YZ_Plane010"), [""])
sketch13.MapMode = "FlatFace"
sketch13.addGeometry([
    Part.LineSegment(V(2420, 7052, 0), V(2370, 7052, 0)),
    Part.LineSegment(V(2370, 7052, 0), V(2370, 7032, 0)),
    Part.LineSegment(V(2370, 7032, 0), V(2400, 7032, 0)),
    Part.LineSegment(V(2400, 7032, 0), V(2400, 6808, 0)),
    Part.LineSegment(V(2400, 6808, 0), V(2420, 6808, 0)),
    Part.LineSegment(V(2420, 6808, 0), V(2420, 7052, 0)),
], False)
sketch13.addConstraint([
    Sketcher.Constraint("Coincident", 0, 2, 1, 1),
    Sketcher.Constraint("Coincident", 1, 2, 2, 1),
    Sketcher.Constraint("Coincident", 2, 2, 3, 1),
    Sketcher.Constraint("Coincident", 3, 2, 4, 1),
    Sketcher.Constraint("Coincident", 4, 2, 5, 1),
    Sketcher.Constraint("Coincident", 5, 2, 0, 1),
    Sketcher.Constraint("Horizontal", 0),
    Sketcher.Constraint("Vertical", 1),
    Sketcher.Constraint("Horizontal", 2),
    Sketcher.Constraint("Vertical", 3),
    Sketcher.Constraint("Horizontal", 4),
    Sketcher.Constraint("Vertical", 5),
    Sketcher.Constraint("Equal", 4, 1),
    Sketcher.Constraint("DistanceX", 0, 2, 0, 1, Q("50 mm")),
    Sketcher.Constraint("DistanceX", 2, 1, 2, 2, Q("30 mm")),
    Sketcher.Constraint("DistanceX", -1, 1, 0, 2, Q("2370 mm")),
    Sketcher.Constraint("DistanceY", 3, 2, 3, 1, Q("224.334753 mm")),
    Sketcher.Constraint("DistanceY", -1, 1, 0, 2, Q("7052.389469 mm")),
])
sketch13.setExpression("Constraints[13]", "Params.sketch13_width")
sketch13.setExpression("Constraints[14]", "Params.sketch13_width2")
pad13 = body11.newObject("PartDesign::Pad", "Pad012")
pad13.Profile = sketch13
pad13.setExpression("Length", "Params.pad13_length")
doc.recompute()

boolean = body2.newObject("PartDesign::Boolean", "Boolean")
boolean.Type = "Fuse"
boolean.addObjects([body11])

sketch14 = body2.newObject("Sketcher::SketchObject", "Sketch013")
sketch14.AttachmentSupport = (doc.getObject("XY_Plane001"), [""])
sketch14.MapMode = "FlatFace"
sketch14.AttachmentOffset = App.Placement(V(0, 0, 6808.054716), App.Rotation())
sketch14.addGeometry([
    Part.LineSegment(V(820, 2418, 0), V(820, 2368, 0)),
    Part.LineSegment(V(820, 2368, 0), V(-20, 2368, 0)),
    Part.LineSegment(V(-20, 2368, 0), V(-20, 2418, 0)),
    Part.LineSegment(V(-20, 2418, 0), V(820, 2418, 0)),
], False)
sketch14.addConstraint([
    Sketcher.Constraint("Coincident", 0, 2, 1, 1),
    Sketcher.Constraint("Coincident", 1, 2, 2, 1),
    Sketcher.Constraint("Coincident", 2, 2, 3, 1),
    Sketcher.Constraint("Coincident", 3, 2, 0, 1),
    Sketcher.Constraint("Vertical", 0),
    Sketcher.Constraint("Horizontal", 1),
    Sketcher.Constraint("Vertical", 2),
    Sketcher.Constraint("Horizontal", 3),
    Sketcher.Constraint("DistanceX", 1, 2, 1, 1, Q("840 mm")),
    Sketcher.Constraint("DistanceY", 0, 2, 0, 1, Q("50 mm")),
    Sketcher.Constraint("DistanceX", -1, 1, 0, 2, Q("820 mm")),
    Sketcher.Constraint("DistanceY", -1, 1, 0, 2, Q("2367.628303 mm")),
])
sketch14.setExpression("Constraints[8]", "Params.sketch14_width")
sketch14.setExpression("Constraints[9]", "Params.sketch14_height")
pad14 = body2.newObject("PartDesign::Pad", "Pad013")
pad14.Profile = sketch14
pad14.setExpression("Length", "Params.pad14_length")
pad14.Reversed = True

sketch15 = body2.newObject("Sketcher::SketchObject", "Sketch014")
sketch15.AttachmentSupport = (doc.getObject("YZ_Plane001"), [""])
sketch15.MapMode = "FlatFace"
sketch15.AttachmentOffset = App.Placement(V(0, 0, 820), App.Rotation())
sketch15.addGeometry([
    Part.LineSegment(V(2418, 6808, 0), V(2368, 6808, 0)),
    Part.LineSegment(V(2368, 6808, 0), V(2368, 6008, 0)),
    Part.LineSegment(V(2368, 6008, 0), V(2418, 6008, 0)),
    Part.LineSegment(V(2418, 6008, 0), V(2418, 6808, 0)),
], False)
sketch15.addConstraint([
    Sketcher.Constraint("Coincident", 0, 2, 1, 1),
    Sketcher.Constraint("Coincident", 1, 2, 2, 1),
    Sketcher.Constraint("Coincident", 2, 2, 3, 1),
    Sketcher.Constraint("Coincident", 3, 2, 0, 1),
    Sketcher.Constraint("Horizontal", 0),
    Sketcher.Constraint("Vertical", 1),
    Sketcher.Constraint("Horizontal", 2),
    Sketcher.Constraint("Vertical", 3),
    Sketcher.Constraint("DistanceX", 0, 2, 0, 1, Q("50 mm")),
    Sketcher.Constraint("DistanceY", 1, 2, 1, 1, Q("800 mm")),
    Sketcher.Constraint("DistanceX", -1, 1, 0, 2, Q("2367.628303 mm")),
    Sketcher.Constraint("DistanceY", -1, 1, 0, 2, Q("6808.054716 mm")),
])
sketch15.setExpression("Constraints[8]", "Params.sketch15_width")
sketch15.setExpression("Constraints[9]", "Params.sketch15_height")
pad15 = body2.newObject("PartDesign::Pad", "Pad014")
pad15.Profile = sketch15
pad15.setExpression("Length", "Params.pad15_length")

sketch16 = body2.newObject("Sketcher::SketchObject", "Sketch015")
sketch16.AttachmentSupport = (doc.getObject("XY_Plane001"), [""])
sketch16.MapMode = "FlatFace"
sketch16.AttachmentOffset = App.Placement(V(0, 0, 6808.054716), App.Rotation())
sketch16.addGeometry([
    Part.LineSegment(V(820, 2418, 0), V(820, 2368, 0)),
    Part.LineSegment(V(820, 2368, 0), V(1660, 2368, 0)),
    Part.LineSegment(V(1660, 2368, 0), V(1660, 2418, 0)),
    Part.LineSegment(V(1660, 2418, 0), V(820, 2418, 0)),
], False)
sketch16.addConstraint([
    Sketcher.Constraint("Coincident", 0, 2, 1, 1),
    Sketcher.Constraint("Coincident", 1, 2, 2, 1),
    Sketcher.Constraint("Coincident", 2, 2, 3, 1),
    Sketcher.Constraint("Coincident", 3, 2, 0, 1),
    Sketcher.Constraint("Vertical", 0),
    Sketcher.Constraint("Horizontal", 1),
    Sketcher.Constraint("Vertical", 2),
    Sketcher.Constraint("Horizontal", 3),
    Sketcher.Constraint("DistanceX", 1, 1, 1, 2, Q("840 mm")),
    Sketcher.Constraint("DistanceY", 0, 2, 0, 1, Q("50 mm")),
    Sketcher.Constraint("DistanceX", -1, 1, 0, 2, Q("820 mm")),
    Sketcher.Constraint("DistanceY", -1, 1, 0, 2, Q("2367.628303 mm")),
])
sketch16.setExpression("Constraints[8]", "Params.sketch16_width")
sketch16.setExpression("Constraints[9]", "Params.sketch16_height")
pad16 = body2.newObject("PartDesign::Pad", "Pad015")
pad16.Profile = sketch16
pad16.setExpression("Length", "Params.pad16_length")

sketch17 = body2.newObject("Sketcher::SketchObject", "Sketch016")
sketch17.AttachmentSupport = (doc.getObject("XZ_Plane001"), [""])
sketch17.MapMode = "FlatFace"
sketch17.AttachmentOffset = App.Placement(V(0, 0, -2417.628303), App.Rotation())
sketch17.addGeometry([
    Part.Circle(V(10, 6038, 0), V(0, 0, 1), 17),
    Part.Circle(V(118, 6038, 0), V(0, 0, 1), 17),
    Part.Circle(V(226, 6038, 0), V(0, 0, 1), 17),
    Part.Circle(V(334, 6038, 0), V(0, 0, 1), 17),
    Part.Circle(V(442, 6038, 0), V(0, 0, 1), 17),
    Part.Circle(V(550, 6038, 0), V(0, 0, 1), 17),
    Part.Circle(V(658, 6038, 0), V(0, 0, 1), 17),
    Part.Circle(V(766, 6038, 0), V(0, 0, 1), 17),
    Part.Circle(V(874, 6038, 0), V(0, 0, 1), 17),
    Part.Circle(V(982, 6038, 0), V(0, 0, 1), 17),
    Part.Circle(V(1090, 6038, 0), V(0, 0, 1), 17),
    Part.Circle(V(1198, 6038, 0), V(0, 0, 1), 17),
    Part.Circle(V(1306, 6038, 0), V(0, 0, 1), 17),
    Part.Circle(V(1414, 6038, 0), V(0, 0, 1), 17),
    Part.Circle(V(1522, 6038, 0), V(0, 0, 1), 17),
    Part.Circle(V(1630, 6038, 0), V(0, 0, 1), 17),
    Part.Circle(V(10, 6143, 0), V(0, 0, 1), 17),
    Part.Circle(V(1630, 6143, 0), V(0, 0, 1), 17),
    Part.Circle(V(10, 6248, 0), V(0, 0, 1), 17),
    Part.Circle(V(1630, 6248, 0), V(0, 0, 1), 17),
    Part.Circle(V(10, 6353, 0), V(0, 0, 1), 17),
    Part.Circle(V(1630, 6353, 0), V(0, 0, 1), 17),
    Part.Circle(V(10, 6458, 0), V(0, 0, 1), 17),
    Part.Circle(V(1630, 6458, 0), V(0, 0, 1), 17),
    Part.Circle(V(10, 6563, 0), V(0, 0, 1), 17),
    Part.Circle(V(1630, 6563, 0), V(0, 0, 1), 17),
    Part.Circle(V(10, 6668, 0), V(0, 0, 1), 17),
    Part.Circle(V(1630, 6668, 0), V(0, 0, 1), 17),
    Part.Circle(V(10, 6773, 0), V(0, 0, 1), 17),
    Part.Circle(V(1630, 6773, 0), V(0, 0, 1), 17),
], False)
sketch17.addConstraint([
    Sketcher.Constraint("Equal", 0, 1),
    Sketcher.Constraint("Equal", 1, 2),
    Sketcher.Constraint("Equal", 2, 3),
    Sketcher.Constraint("Equal", 3, 4),
    Sketcher.Constraint("Equal", 4, 5),
    Sketcher.Constraint("Equal", 5, 6),
    Sketcher.Constraint("Equal", 6, 7),
    Sketcher.Constraint("Equal", 7, 8),
    Sketcher.Constraint("Equal", 8, 9),
    Sketcher.Constraint("Equal", 9, 10),
    Sketcher.Constraint("Equal", 10, 11),
    Sketcher.Constraint("Equal", 11, 12),
    Sketcher.Constraint("Equal", 12, 13),
    Sketcher.Constraint("Equal", 13, 14),
    Sketcher.Constraint("Equal", 14, 15),
    Sketcher.Constraint("Equal", 15, 16),
    Sketcher.Constraint("Equal", 16, 17),
    Sketcher.Constraint("Equal", 17, 18),
    Sketcher.Constraint("Equal", 18, 19),
    Sketcher.Constraint("Equal", 19, 20),
    Sketcher.Constraint("Equal", 20, 21),
    Sketcher.Constraint("Equal", 21, 22),
    Sketcher.Constraint("Equal", 22, 23),
    Sketcher.Constraint("Equal", 23, 24),
    Sketcher.Constraint("Equal", 24, 25),
    Sketcher.Constraint("Equal", 25, 26),
    Sketcher.Constraint("Equal", 26, 27),
    Sketcher.Constraint("Equal", 27, 28),
    Sketcher.Constraint("Equal", 28, 29),
    Sketcher.Constraint("Horizontal", 0, 3, 1, 3),
    Sketcher.Constraint("Horizontal", 1, 3, 2, 3),
    Sketcher.Constraint("Horizontal", 2, 3, 3, 3),
    Sketcher.Constraint("Horizontal", 3, 3, 4, 3),
    Sketcher.Constraint("Horizontal", 4, 3, 5, 3),
    Sketcher.Constraint("Horizontal", 5, 3, 6, 3),
    Sketcher.Constraint("Horizontal", 6, 3, 7, 3),
    Sketcher.Constraint("Horizontal", 7, 3, 8, 3),
    Sketcher.Constraint("Horizontal", 8, 3, 9, 3),
    Sketcher.Constraint("Horizontal", 9, 3, 10, 3),
    Sketcher.Constraint("Horizontal", 10, 3, 11, 3),
    Sketcher.Constraint("Horizontal", 11, 3, 12, 3),
    Sketcher.Constraint("Horizontal", 12, 3, 13, 3),
    Sketcher.Constraint("Horizontal", 13, 3, 14, 3),
    Sketcher.Constraint("Horizontal", 14, 3, 15, 3),
    Sketcher.Constraint("Horizontal", 16, 3, 17, 3),
    Sketcher.Constraint("Horizontal", 18, 3, 19, 3),
    Sketcher.Constraint("Horizontal", 20, 3, 21, 3),
    Sketcher.Constraint("Horizontal", 22, 3, 23, 3),
    Sketcher.Constraint("Horizontal", 24, 3, 25, 3),
    Sketcher.Constraint("Horizontal", 26, 3, 27, 3),
    Sketcher.Constraint("Horizontal", 28, 3, 29, 3),
    Sketcher.Constraint("Vertical", 0, 3, 16, 3),
    Sketcher.Constraint("Vertical", 15, 3, 17, 3),
    Sketcher.Constraint("Vertical", 16, 3, 18, 3),
    Sketcher.Constraint("Vertical", 17, 3, 19, 3),
    Sketcher.Constraint("Vertical", 18, 3, 20, 3),
    Sketcher.Constraint("Vertical", 19, 3, 21, 3),
    Sketcher.Constraint("Vertical", 20, 3, 22, 3),
    Sketcher.Constraint("Vertical", 21, 3, 23, 3),
    Sketcher.Constraint("Vertical", 22, 3, 24, 3),
    Sketcher.Constraint("Vertical", 23, 3, 25, 3),
    Sketcher.Constraint("Vertical", 24, 3, 26, 3),
    Sketcher.Constraint("Vertical", 25, 3, 27, 3),
    Sketcher.Constraint("Vertical", 26, 3, 28, 3),
    Sketcher.Constraint("Vertical", 27, 3, 29, 3),
    Sketcher.Constraint("Diameter", 0, Q("34 mm")),
    Sketcher.Constraint("DistanceX", -1, 1, 0, 3, Q("10 mm")),
    Sketcher.Constraint("DistanceX", -1, 1, 1, 3, Q("118 mm")),
    Sketcher.Constraint("DistanceX", -1, 1, 2, 3, Q("226 mm")),
    Sketcher.Constraint("DistanceX", -1, 1, 3, 3, Q("334 mm")),
    Sketcher.Constraint("DistanceX", -1, 1, 4, 3, Q("442 mm")),
    Sketcher.Constraint("DistanceX", -1, 1, 5, 3, Q("550 mm")),
    Sketcher.Constraint("DistanceX", -1, 1, 6, 3, Q("658 mm")),
    Sketcher.Constraint("DistanceX", -1, 1, 7, 3, Q("766 mm")),
    Sketcher.Constraint("DistanceX", -1, 1, 8, 3, Q("874 mm")),
    Sketcher.Constraint("DistanceX", -1, 1, 9, 3, Q("982 mm")),
    Sketcher.Constraint("DistanceX", -1, 1, 10, 3, Q("1090 mm")),
    Sketcher.Constraint("DistanceX", -1, 1, 11, 3, Q("1198 mm")),
    Sketcher.Constraint("DistanceX", -1, 1, 12, 3, Q("1306 mm")),
    Sketcher.Constraint("DistanceX", -1, 1, 13, 3, Q("1414 mm")),
    Sketcher.Constraint("DistanceX", -1, 1, 14, 3, Q("1522 mm")),
    Sketcher.Constraint("DistanceX", -1, 1, 15, 3, Q("1630 mm")),
    Sketcher.Constraint("DistanceY", 0, 3, 16, 3, Q("105 mm")),
    Sketcher.Constraint("DistanceY", 16, 3, 18, 3, Q("105 mm")),
    Sketcher.Constraint("DistanceY", 18, 3, 20, 3, Q("105 mm")),
    Sketcher.Constraint("DistanceY", 20, 3, 22, 3, Q("105 mm")),
    Sketcher.Constraint("DistanceY", 22, 3, 24, 3, Q("105 mm")),
    Sketcher.Constraint("DistanceY", 24, 3, 26, 3, Q("105 mm")),
    Sketcher.Constraint("DistanceY", 26, 3, 28, 3, Q("105 mm")),
    Sketcher.Constraint("DistanceY", -1, 1, 0, 3, Q("6038.054716 mm")),
])
sketch17.setExpression("Constraints[65]", "Params.sketch17_diameter")
pad17 = body2.newObject("PartDesign::Pad", "Pad016")
pad17.Profile = sketch17
pad17.setExpression("Length", "Params.pad17_length")
pad17.Reversed = True

sketch18 = body2.newObject("Sketcher::SketchObject", "Sketch017")
sketch18.AttachmentSupport = (doc.getObject("XZ_Plane001"), [""])
sketch18.MapMode = "FlatFace"
sketch18.AttachmentOffset = App.Placement(V(0, 0, -3267.628303), App.Rotation())
sketch18.addGeometry([
    Part.LineSegment(V(1675, 5993, 0), V(-35, 5993, 0)),
    Part.LineSegment(V(-35, 5993, 0), V(-35, 7113, 0)),
    Part.LineSegment(V(-35, 7113, 0), V(55, 7113, 0)),
    Part.LineSegment(V(55, 7113, 0), V(55, 6083, 0)),
    Part.LineSegment(V(55, 6083, 0), V(1585, 6083, 0)),
    Part.LineSegment(V(1585, 6083, 0), V(1585, 7300, 0)),
    Part.LineSegment(V(1585, 7300, 0), V(1675, 7300, 0)),
    Part.LineSegment(V(1675, 7300, 0), V(1675, 5993, 0)),
], False)
sketch18.addConstraint([
    Sketcher.Constraint("Coincident", 0, 2, 1, 1),
    Sketcher.Constraint("Coincident", 1, 2, 2, 1),
    Sketcher.Constraint("Coincident", 2, 2, 3, 1),
    Sketcher.Constraint("Coincident", 3, 2, 4, 1),
    Sketcher.Constraint("Coincident", 4, 2, 5, 1),
    Sketcher.Constraint("Coincident", 5, 2, 6, 1),
    Sketcher.Constraint("Coincident", 6, 2, 7, 1),
    Sketcher.Constraint("Coincident", 7, 2, 0, 1),
    Sketcher.Constraint("Horizontal", 0),
    Sketcher.Constraint("Vertical", 1),
    Sketcher.Constraint("Horizontal", 2),
    Sketcher.Constraint("Vertical", 3),
    Sketcher.Constraint("Horizontal", 4),
    Sketcher.Constraint("Vertical", 5),
    Sketcher.Constraint("Horizontal", 6),
    Sketcher.Constraint("Vertical", 7),
    Sketcher.Constraint("Equal", 2, 6),
    Sketcher.Constraint("DistanceX", 0, 2, 0, 1, Q("1710 mm")),
    Sketcher.Constraint("DistanceX", 2, 1, 2, 2, Q("90 mm")),
    Sketcher.Constraint("DistanceX", 0, 2, -1, 1, Q("35 mm")),
    Sketcher.Constraint("DistanceY", 0, 2, 3, 2, Q("90 mm")),
    Sketcher.Constraint("DistanceY", 1, 1, 1, 2, Q("1120.313079 mm")),
    Sketcher.Constraint("DistanceY", 5, 1, 5, 2, Q("1216.459388 mm")),
    Sketcher.Constraint("DistanceY", -1, 1, 0, 2, Q("5993.054716 mm")),
])
sketch18.setExpression("Constraints[17]", "Params.sketch18_width")
sketch18.setExpression("Constraints[18]", "Params.sketch18_width2")
pad18 = body2.newObject("PartDesign::Pad", "Pad017")
pad18.Profile = sketch18
pad18.setExpression("Length", "Params.pad18_length")
pad18.Reversed = True
doc.recompute()

fillet = body2.newObject("PartDesign::Fillet", "Fillet")
fillet.Base = (pad18, edges_at(pad18, [
    (-35, 3327.628, 6553.211),
    (10, 3327.628, 7113.368),
    (55, 3327.628, 6598.211),
    (820, 3327.628, 6083.055),
    (1585, 3327.628, 6691.284),
    (1630, 3327.628, 7299.514),
    (1675, 3327.628, 6646.284),
    (820, 3327.628, 5993.055),
]))
fillet.setExpression("Radius", "Params.fillet_radius")

doc.recompute()
